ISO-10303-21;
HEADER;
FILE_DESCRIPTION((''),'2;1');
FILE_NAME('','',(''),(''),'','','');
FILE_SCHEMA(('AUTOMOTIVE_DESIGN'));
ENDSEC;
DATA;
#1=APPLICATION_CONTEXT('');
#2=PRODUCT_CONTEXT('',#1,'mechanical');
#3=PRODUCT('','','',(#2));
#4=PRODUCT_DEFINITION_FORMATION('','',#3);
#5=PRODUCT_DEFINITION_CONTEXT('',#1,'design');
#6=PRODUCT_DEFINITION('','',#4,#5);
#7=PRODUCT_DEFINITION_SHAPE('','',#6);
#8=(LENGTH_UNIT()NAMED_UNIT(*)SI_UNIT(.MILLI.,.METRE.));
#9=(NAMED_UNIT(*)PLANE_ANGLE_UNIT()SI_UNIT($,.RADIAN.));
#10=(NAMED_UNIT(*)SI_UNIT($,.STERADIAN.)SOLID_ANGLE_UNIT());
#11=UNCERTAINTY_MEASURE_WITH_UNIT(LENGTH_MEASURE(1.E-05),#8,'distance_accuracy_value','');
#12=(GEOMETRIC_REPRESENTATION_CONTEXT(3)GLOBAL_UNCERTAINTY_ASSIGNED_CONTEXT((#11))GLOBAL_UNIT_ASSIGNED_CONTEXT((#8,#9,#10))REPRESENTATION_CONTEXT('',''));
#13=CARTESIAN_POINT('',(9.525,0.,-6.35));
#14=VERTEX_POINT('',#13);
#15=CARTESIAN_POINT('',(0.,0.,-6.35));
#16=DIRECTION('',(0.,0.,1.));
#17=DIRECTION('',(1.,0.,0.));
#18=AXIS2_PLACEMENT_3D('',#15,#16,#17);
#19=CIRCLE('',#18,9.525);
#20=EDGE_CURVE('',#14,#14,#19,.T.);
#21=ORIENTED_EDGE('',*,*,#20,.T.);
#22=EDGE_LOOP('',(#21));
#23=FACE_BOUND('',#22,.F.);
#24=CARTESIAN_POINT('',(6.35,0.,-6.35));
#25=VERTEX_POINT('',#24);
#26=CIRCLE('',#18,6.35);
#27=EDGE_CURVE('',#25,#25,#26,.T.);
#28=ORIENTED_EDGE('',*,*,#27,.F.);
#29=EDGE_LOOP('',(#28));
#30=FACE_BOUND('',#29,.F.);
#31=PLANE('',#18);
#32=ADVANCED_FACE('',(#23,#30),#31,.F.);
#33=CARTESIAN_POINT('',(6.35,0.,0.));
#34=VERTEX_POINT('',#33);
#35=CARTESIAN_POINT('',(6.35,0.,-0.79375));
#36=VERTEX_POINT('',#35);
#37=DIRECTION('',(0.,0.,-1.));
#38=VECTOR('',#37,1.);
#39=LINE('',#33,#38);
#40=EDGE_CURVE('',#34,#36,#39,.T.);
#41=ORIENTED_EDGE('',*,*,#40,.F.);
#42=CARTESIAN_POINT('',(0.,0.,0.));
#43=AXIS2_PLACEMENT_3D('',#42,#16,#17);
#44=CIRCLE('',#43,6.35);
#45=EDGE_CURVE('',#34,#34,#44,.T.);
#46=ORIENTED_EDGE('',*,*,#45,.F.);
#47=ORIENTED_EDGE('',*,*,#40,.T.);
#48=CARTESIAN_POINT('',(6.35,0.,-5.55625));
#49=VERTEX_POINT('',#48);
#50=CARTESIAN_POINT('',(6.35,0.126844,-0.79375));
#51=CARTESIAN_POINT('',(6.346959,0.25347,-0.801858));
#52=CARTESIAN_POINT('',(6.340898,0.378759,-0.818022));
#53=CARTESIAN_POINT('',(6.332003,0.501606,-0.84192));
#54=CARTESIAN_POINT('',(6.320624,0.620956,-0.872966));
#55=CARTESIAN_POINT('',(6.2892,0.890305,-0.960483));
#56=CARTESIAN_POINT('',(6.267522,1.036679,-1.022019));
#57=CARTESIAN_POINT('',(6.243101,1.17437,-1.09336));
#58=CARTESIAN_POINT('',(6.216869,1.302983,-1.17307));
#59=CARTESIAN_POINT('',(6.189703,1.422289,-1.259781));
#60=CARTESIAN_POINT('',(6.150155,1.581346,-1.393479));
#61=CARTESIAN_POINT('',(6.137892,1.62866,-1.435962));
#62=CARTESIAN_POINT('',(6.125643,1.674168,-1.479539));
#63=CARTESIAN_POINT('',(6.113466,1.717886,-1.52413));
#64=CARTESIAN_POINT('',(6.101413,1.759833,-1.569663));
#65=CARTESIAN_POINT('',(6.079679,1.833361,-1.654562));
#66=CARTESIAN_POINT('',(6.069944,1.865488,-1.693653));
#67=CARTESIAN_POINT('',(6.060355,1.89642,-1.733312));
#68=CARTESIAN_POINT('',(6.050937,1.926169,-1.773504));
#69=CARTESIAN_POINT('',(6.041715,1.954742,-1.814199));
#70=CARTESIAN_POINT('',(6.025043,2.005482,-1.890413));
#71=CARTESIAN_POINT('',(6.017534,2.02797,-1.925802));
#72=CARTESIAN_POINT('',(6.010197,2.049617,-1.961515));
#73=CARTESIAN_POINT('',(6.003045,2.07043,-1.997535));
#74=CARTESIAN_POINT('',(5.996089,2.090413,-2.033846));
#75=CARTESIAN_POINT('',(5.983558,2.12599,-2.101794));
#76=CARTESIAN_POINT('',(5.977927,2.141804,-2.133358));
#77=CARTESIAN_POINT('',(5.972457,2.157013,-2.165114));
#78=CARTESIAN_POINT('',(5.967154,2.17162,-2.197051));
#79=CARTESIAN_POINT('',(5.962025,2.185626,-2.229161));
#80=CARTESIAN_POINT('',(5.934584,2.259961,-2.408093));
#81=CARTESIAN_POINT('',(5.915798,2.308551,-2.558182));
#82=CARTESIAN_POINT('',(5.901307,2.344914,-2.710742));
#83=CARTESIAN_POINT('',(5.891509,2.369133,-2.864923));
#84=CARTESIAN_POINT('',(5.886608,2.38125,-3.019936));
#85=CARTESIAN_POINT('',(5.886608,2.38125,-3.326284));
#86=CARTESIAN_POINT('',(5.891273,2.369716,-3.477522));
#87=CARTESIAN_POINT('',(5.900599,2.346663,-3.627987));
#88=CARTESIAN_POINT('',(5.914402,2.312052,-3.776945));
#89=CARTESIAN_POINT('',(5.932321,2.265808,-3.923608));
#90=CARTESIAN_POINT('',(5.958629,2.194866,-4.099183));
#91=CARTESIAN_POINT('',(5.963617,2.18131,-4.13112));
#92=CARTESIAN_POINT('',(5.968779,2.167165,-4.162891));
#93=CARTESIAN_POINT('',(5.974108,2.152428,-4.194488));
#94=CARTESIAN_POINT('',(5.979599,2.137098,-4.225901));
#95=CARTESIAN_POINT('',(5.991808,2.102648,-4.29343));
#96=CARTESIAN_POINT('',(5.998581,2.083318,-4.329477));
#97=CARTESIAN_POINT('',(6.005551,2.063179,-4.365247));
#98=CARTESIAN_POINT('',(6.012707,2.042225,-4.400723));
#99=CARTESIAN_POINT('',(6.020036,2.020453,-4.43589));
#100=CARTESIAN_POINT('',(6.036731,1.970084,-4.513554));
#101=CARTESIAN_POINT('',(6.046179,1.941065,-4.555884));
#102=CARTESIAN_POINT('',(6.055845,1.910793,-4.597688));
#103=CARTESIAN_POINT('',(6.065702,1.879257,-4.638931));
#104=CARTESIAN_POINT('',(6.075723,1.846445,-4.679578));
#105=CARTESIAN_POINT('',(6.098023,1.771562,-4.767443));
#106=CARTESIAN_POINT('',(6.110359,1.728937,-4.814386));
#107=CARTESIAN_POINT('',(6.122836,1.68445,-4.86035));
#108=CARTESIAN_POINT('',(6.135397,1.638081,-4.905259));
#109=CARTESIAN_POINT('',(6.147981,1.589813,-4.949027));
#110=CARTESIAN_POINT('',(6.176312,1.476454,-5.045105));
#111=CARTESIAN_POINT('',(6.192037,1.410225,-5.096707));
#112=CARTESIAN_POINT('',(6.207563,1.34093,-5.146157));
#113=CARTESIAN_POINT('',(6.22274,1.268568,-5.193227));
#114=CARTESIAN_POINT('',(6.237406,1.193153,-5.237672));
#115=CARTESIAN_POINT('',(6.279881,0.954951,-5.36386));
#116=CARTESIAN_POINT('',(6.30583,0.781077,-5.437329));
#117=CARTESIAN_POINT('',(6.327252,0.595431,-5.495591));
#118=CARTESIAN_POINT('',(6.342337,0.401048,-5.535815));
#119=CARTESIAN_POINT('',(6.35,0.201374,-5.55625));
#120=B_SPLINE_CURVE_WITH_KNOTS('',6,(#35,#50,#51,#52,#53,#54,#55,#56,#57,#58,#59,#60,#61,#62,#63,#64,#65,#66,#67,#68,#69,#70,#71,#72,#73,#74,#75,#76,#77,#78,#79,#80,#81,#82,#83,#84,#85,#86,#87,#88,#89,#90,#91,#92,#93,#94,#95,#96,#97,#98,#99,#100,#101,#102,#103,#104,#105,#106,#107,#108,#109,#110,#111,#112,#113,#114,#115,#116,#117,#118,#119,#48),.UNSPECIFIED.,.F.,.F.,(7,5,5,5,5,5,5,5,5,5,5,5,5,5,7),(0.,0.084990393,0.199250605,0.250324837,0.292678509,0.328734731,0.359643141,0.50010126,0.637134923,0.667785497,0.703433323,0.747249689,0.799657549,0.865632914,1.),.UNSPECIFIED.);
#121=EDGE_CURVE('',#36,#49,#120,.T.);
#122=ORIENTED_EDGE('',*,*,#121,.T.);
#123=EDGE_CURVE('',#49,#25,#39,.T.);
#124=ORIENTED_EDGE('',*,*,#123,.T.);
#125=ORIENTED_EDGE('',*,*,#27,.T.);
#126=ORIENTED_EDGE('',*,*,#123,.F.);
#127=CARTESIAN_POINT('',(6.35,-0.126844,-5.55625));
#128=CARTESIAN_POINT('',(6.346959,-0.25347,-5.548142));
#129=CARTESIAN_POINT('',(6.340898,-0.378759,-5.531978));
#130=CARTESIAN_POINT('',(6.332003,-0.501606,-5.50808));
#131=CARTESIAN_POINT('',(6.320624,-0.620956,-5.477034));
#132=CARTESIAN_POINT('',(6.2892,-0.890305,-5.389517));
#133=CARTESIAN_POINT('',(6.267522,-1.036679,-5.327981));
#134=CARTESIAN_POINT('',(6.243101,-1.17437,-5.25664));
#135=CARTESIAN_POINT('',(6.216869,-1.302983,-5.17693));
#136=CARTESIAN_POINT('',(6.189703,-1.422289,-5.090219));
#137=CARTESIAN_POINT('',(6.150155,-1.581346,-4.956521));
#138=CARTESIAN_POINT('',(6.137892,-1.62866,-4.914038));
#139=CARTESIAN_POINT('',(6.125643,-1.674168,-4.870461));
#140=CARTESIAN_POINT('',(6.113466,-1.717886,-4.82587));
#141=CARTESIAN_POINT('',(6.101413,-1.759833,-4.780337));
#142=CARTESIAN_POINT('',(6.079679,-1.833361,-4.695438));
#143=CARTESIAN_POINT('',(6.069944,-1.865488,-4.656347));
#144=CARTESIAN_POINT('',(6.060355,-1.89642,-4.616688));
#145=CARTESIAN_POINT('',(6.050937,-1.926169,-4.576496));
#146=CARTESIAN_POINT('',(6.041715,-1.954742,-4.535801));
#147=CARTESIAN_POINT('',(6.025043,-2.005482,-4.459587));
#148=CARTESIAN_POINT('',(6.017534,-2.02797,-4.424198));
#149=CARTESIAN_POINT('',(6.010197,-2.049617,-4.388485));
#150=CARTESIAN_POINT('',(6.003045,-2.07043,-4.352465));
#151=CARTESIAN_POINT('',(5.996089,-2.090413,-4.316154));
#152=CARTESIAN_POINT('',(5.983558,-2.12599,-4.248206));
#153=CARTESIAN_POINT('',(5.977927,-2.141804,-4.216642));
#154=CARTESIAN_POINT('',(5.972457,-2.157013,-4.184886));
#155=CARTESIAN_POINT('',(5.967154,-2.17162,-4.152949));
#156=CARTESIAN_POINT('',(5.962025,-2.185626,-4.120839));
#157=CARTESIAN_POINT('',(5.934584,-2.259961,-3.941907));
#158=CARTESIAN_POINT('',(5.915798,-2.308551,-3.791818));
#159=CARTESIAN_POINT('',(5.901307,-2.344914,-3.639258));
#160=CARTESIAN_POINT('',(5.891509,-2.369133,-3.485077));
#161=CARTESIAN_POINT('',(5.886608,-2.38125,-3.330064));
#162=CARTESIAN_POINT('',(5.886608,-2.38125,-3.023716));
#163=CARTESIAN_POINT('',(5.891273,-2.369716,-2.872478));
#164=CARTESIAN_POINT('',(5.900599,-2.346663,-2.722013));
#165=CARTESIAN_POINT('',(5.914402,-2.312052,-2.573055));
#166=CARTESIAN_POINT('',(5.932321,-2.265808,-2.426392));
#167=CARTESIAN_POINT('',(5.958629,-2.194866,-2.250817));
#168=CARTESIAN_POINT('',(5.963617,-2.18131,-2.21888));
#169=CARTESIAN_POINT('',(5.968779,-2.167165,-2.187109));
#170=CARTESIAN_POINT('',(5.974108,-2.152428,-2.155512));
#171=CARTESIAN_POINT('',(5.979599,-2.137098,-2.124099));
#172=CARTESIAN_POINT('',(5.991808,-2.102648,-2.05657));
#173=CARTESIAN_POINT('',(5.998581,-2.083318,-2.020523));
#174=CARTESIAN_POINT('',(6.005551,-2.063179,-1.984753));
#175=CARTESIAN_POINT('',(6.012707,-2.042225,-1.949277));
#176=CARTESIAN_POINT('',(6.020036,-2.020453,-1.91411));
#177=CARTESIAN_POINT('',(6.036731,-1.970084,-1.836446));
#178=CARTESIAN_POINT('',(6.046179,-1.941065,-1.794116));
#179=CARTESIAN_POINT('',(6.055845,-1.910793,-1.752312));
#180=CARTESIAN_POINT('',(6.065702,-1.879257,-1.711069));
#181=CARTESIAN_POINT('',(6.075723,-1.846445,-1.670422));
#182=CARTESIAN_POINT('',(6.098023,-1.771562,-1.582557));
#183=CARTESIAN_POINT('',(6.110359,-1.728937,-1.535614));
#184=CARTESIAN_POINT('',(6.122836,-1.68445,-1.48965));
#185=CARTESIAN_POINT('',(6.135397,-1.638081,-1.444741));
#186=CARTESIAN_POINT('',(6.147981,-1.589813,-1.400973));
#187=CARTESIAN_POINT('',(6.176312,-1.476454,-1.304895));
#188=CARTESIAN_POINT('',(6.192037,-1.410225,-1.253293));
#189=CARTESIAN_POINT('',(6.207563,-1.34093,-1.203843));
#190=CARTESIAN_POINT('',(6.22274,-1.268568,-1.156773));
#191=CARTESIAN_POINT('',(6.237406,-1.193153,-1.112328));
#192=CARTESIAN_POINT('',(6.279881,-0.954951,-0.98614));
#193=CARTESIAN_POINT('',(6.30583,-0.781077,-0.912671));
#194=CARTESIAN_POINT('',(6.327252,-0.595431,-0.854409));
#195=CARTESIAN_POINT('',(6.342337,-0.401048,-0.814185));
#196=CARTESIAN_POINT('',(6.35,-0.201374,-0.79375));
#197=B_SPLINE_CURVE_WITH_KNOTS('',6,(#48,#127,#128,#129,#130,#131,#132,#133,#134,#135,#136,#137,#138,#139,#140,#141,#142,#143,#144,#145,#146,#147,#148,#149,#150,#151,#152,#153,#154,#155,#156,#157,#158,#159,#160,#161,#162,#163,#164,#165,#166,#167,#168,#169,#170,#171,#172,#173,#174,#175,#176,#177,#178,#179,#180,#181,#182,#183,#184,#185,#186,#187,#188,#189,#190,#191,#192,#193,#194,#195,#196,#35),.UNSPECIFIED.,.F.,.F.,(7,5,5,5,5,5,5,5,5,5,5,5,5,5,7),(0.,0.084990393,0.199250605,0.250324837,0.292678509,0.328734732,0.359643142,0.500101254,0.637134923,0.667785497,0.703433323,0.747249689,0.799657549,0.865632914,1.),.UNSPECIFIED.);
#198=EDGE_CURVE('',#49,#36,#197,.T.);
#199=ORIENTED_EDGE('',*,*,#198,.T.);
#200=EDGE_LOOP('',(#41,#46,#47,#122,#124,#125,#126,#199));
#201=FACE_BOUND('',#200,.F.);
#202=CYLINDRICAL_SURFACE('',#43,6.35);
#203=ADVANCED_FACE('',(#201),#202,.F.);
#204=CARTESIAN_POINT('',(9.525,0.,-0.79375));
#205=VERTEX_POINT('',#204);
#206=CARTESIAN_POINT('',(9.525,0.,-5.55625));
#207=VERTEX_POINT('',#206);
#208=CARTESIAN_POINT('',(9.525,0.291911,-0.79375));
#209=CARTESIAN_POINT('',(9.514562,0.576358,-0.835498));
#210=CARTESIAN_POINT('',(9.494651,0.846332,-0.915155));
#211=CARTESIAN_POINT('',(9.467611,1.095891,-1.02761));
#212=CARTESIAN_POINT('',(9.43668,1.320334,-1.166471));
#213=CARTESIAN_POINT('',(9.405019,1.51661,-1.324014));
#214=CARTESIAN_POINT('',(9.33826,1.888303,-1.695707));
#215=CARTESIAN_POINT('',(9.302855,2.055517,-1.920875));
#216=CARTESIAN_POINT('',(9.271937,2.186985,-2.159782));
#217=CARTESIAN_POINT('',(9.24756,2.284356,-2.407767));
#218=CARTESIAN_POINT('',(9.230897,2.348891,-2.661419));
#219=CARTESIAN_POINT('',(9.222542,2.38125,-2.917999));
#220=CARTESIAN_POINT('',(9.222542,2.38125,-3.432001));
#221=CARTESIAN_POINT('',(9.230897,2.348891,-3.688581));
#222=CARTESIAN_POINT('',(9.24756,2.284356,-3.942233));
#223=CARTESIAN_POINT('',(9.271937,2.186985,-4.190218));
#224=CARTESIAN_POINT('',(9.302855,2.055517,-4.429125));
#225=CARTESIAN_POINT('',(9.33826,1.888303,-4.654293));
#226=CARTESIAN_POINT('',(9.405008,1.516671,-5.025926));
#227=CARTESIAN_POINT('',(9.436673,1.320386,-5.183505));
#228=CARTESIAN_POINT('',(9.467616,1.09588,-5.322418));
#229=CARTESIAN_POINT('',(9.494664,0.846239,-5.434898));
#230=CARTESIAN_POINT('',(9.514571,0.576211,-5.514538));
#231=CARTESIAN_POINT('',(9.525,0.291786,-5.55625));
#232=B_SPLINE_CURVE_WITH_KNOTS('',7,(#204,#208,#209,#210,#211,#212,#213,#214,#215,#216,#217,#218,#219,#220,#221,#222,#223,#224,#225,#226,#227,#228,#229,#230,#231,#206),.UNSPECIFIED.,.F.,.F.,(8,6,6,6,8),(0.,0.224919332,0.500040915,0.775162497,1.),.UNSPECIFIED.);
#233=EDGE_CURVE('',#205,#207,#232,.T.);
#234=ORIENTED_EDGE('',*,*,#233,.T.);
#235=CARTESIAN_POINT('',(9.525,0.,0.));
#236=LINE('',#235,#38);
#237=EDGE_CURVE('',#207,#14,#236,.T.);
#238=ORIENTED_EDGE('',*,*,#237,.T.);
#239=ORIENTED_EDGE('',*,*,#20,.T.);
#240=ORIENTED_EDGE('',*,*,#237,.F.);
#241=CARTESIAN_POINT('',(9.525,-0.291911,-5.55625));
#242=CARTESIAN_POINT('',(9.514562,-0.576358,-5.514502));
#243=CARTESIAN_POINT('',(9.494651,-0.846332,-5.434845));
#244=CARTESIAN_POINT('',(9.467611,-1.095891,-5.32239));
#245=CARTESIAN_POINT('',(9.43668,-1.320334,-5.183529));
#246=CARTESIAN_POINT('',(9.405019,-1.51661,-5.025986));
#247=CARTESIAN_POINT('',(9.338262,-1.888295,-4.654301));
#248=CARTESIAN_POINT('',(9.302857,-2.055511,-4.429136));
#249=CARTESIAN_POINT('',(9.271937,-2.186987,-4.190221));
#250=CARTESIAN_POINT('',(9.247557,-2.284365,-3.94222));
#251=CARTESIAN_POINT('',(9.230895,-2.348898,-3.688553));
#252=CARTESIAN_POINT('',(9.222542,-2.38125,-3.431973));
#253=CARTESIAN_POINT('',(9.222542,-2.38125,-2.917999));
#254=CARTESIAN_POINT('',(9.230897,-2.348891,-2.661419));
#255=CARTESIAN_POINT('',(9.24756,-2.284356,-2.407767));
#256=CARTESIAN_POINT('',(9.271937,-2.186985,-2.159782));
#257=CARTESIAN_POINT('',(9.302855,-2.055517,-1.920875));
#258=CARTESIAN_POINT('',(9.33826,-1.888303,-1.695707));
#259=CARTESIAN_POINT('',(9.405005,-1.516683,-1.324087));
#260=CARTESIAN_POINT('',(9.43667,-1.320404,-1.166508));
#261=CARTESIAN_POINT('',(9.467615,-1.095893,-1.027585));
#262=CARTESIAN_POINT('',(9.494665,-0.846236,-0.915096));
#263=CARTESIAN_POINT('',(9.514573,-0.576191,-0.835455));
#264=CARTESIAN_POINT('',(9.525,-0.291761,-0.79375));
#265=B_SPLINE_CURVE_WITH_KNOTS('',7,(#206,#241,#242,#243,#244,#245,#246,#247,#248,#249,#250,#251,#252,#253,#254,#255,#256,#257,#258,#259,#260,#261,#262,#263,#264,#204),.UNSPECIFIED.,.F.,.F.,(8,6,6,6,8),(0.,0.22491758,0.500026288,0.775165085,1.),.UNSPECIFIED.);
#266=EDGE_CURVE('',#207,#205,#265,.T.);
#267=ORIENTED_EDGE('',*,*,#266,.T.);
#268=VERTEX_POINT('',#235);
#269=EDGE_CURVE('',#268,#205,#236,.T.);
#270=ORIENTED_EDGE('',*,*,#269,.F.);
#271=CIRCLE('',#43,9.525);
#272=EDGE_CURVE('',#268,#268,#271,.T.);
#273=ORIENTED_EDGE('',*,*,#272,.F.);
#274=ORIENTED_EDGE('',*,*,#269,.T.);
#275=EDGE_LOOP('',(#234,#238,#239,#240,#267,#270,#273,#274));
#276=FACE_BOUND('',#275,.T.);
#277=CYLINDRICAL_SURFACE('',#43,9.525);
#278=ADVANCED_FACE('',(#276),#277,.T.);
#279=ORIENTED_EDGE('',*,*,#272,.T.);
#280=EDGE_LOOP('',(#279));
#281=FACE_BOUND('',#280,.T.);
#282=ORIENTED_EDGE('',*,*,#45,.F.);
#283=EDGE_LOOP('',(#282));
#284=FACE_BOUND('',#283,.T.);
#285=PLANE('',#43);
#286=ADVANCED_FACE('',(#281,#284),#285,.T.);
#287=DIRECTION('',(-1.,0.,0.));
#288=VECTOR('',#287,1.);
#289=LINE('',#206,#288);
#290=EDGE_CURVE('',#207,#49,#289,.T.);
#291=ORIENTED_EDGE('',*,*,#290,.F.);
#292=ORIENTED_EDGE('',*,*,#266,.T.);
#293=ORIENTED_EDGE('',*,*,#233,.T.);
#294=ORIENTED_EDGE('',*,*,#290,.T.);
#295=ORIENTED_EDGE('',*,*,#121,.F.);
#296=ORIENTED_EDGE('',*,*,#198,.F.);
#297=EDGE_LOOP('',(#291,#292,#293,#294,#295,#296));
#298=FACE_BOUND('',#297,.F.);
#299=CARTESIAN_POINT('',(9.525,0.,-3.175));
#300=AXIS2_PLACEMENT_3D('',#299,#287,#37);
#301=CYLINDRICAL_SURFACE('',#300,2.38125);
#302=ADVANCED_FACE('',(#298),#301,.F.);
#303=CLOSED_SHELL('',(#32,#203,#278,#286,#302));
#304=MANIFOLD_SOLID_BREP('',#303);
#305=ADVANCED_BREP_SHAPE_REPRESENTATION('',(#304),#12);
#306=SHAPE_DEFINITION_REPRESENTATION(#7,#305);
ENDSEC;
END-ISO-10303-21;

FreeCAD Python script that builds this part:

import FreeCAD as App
import Part
import Sketcher

V = App.Vector
Q = App.Units.Quantity

doc = App.newDocument("Part")
body = doc.addObject("PartDesign::Body", "Body")

# Sketch on XY plane
sketch1 = body.newObject("Sketcher::SketchObject", "Sketch")
sketch1.AttachmentSupport = (doc.getObject("XY_Plane"), [""])
sketch1.MapMode = "FlatFace"
sketch1.addGeometry([
    Part.Circle(V(0, 0, 0), V(0, 0, 1), 9.525),
    Part.Circle(V(0, 0, 0), V(0, 0, 1), 6.35),
], False)
sketch1.addConstraint([
    Sketcher.Constraint("Coincident", 0, 3, -1, 1),
    Sketcher.Constraint("Coincident", 1, 3, -1, 1),
    Sketcher.Constraint("Diameter", 1, Q("0.5 in")),
    Sketcher.Constraint("Diameter", 0, Q("0.75 in")),
])
pad1 = body.newObject("PartDesign::Pad", "Pad")
pad1.Profile = sketch1
pad1.Length = Q("0.25 in")
pad1.Reversed = True

# Sketch on YZ plane
sketch2 = body.newObject("Sketcher::SketchObject", "Sketch001")
sketch2.AttachmentSupport = (doc.getObject("YZ_Plane"), [""])
sketch2.MapMode = "FlatFace"
sketch2.AttachmentOffset = App.Placement(V(0, 0, 0.375 * 25.4), App.Rotation())
sketch2.addGeometry(Part.Circle(V(0, -3.175, 0), V(0, 0, 1), 2.38125), False)
sketch2.addConstraint([
    Sketcher.Constraint("PointOnObject", 0, 3, -2),
    Sketcher.Constraint("Diameter", 0, Q("0.1875 in")),
    Sketcher.Constraint("DistanceY", 0, 3, -1, 1, Q("0.125 in")),
])
doc.recompute()
hole = body.newObject("PartDesign::Hole", "Hole")
hole.Profile = sketch2
hole.ThreadType = "None"
hole.Diameter = Q("0.1875 in")
hole.DepthType = "Dimension"
hole.Depth = Q("0.25 in")
hole.DrillPoint = "Angled"
hole.DrillPointAngle = 118

doc.recompute()
